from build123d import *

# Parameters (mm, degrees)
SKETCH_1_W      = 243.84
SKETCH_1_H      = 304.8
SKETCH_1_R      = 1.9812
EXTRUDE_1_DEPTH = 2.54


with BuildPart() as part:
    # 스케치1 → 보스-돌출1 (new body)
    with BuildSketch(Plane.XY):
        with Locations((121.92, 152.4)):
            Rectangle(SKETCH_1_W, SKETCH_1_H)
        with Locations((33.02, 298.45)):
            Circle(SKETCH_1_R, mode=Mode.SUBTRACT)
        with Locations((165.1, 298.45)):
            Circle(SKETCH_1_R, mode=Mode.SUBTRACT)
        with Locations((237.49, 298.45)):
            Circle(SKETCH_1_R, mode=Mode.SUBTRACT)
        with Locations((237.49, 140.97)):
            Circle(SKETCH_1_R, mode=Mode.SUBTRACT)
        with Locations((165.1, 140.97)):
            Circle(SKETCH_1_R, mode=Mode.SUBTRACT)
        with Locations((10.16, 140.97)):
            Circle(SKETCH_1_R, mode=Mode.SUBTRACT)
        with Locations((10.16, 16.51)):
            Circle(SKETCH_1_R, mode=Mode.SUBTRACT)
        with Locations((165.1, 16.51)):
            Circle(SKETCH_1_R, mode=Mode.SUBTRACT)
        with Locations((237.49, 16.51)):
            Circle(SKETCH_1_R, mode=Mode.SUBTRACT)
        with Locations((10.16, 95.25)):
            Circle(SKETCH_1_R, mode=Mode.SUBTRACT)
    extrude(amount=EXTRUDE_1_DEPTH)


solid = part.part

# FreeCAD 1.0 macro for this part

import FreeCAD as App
import Part
import Sketcher
Q = App.Units.Quantity


def add_polygon(sketch, points):
    """Adds a closed chain of lines whose ends are joined by coincident constraints."""
    first, n = sketch.GeometryCount, len(points)
    for a, b in zip(points, points[1:] + points[:1]):
        sketch.addGeometry(Part.LineSegment(App.Vector(*a, 0), App.Vector(*b, 0)), False)
    for i in range(n):
        sketch.addConstraint(Sketcher.Constraint("Coincident", first + i, 2, first + (i + 1) % n, 1))

doc = App.newDocument("Part")
params = doc.addObject("Spreadsheet::Sheet", "Params")
for row, (alias, value) in enumerate([
    ("sketch1_height", "12 in"),
    ("sketch1_diameter", "0.156 in"),
    ("sketch1_width", "9.6 in"),
    ("pad1_length", "0.1 in"),
], start=1):
    params.set(f"A{row}", alias)
    params.set(f"B{row}", "=" + value)
    params.setAlias(f"B{row}", alias)

body = doc.addObject("PartDesign::Body", "Body")

# Sketch on XY plane
sketch1 = doc.addObject("Sketcher::SketchObject", "Sketch")
body.addObject(sketch1)
sketch1.AttachmentSupport = (doc.XY_Plane, [""])
sketch1.MapMode = "FlatFace"
add_polygon(sketch1, [(0, 304.8), (0, 0), (243.8, 0), (243.8, 304.8)])  # lines 0-3
sketch1.addGeometry(Part.Circle(App.Vector(10.2, 16.5, 0), App.Vector(0, 0, 1), 2), False)  # 4
sketch1.addGeometry(Part.Circle(App.Vector(10.2, 95.2, 0), App.Vector(0, 0, 1), 2), False)  # 5
sketch1.addGeometry(Part.Circle(App.Vector(10.2, 141, 0), App.Vector(0, 0, 1), 2), False)  # 6
sketch1.addGeometry(Part.Circle(App.Vector(165.1, 16.5, 0), App.Vector(0, 0, 1), 2), False)  # 7
sketch1.addGeometry(Part.Circle(App.Vector(237.5, 16.5, 0), App.Vector(0, 0, 1), 2), False)  # 8
sketch1.addGeometry(Part.Circle(App.Vector(165.1, 141, 0), App.Vector(0, 0, 1), 2), False)  # 9
sketch1.addGeometry(Part.Circle(App.Vector(237.5, 141, 0), App.Vector(0, 0, 1), 2), False)  # 10
sketch1.addGeometry(Part.Circle(App.Vector(33, 298.4, 0), App.Vector(0, 0, 1), 2), False)  # 11
sketch1.addGeometry(Part.Circle(App.Vector(165.1, 298.4, 0), App.Vector(0, 0, 1), 2), False)  # 12
sketch1.addGeometry(Part.Circle(App.Vector(237.5, 298.4, 0), App.Vector(0, 0, 1), 2), False)  # 13
sketch1.addConstraint([
    Sketcher.Constraint("Vertical", 0),
    Sketcher.Constraint("Horizontal", 1),
    Sketcher.Constraint("Vertical", 2),
    Sketcher.Constraint("Horizontal", 3),
    Sketcher.Constraint("Coincident", 0, 2, -1, 1),
    Sketcher.Constraint("Equal", 4, 5),
    Sketcher.Constraint("Equal", 5, 6),
    Sketcher.Constraint("Equal", 6, 7),
    Sketcher.Constraint("Equal", 7, 8),
    Sketcher.Constraint("Equal", 8, 9),
    Sketcher.Constraint("Equal", 9, 10),
    Sketcher.Constraint("Equal", 10, 11),
    Sketcher.Constraint("Equal", 11, 12),
    Sketcher.Constraint("Equal", 12, 13),
    Sketcher.Constraint("Horizontal", 4, 3, 7, 3),
    Sketcher.Constraint("Horizontal", 7, 3, 8, 3),
    Sketcher.Constraint("Horizontal", 6, 3, 9, 3),
    Sketcher.Constraint("Horizontal", 9, 3, 10, 3),
    Sketcher.Constraint("Horizontal", 11, 3, 12, 3),
    Sketcher.Constraint("Horizontal", 12, 3, 13, 3),
    Sketcher.Constraint("Vertical", 4, 3, 5, 3),
    Sketcher.Constraint("Vertical", 5, 3, 6, 3),
    Sketcher.Constraint("Vertical", 7, 3, 9, 3),
    Sketcher.Constraint("Vertical", 8, 3, 10, 3),
    Sketcher.Constraint("Vertical", 9, 3, 12, 3),
    Sketcher.Constraint("Vertical", 10, 3, 13, 3),
    Sketcher.Constraint("DistanceY", 0, 2, 0, 1, Q("12 in")),
    Sketcher.Constraint("Diameter", 4, Q("0.156 in")),
    Sketcher.Constraint("DistanceX", 1, 1, 1, 2, Q("9.6 in")),
    Sketcher.Constraint("DistanceY", 5, 3, 11, 3, Q("8 in")),
    Sketcher.Constraint("DistanceX", -1, 1, 4, 3, Q("0.4 in")),
    Sketcher.Constraint("DistanceX", -1, 1, 7, 3, Q("6.5 in")),
    Sketcher.Constraint("DistanceX", -1, 1, 11, 3, Q("1.3 in")),
    Sketcher.Constraint("DistanceY", 4, 3, 5, 3, Q("3.1 in")),
    Sketcher.Constraint("DistanceY", 5, 3, 6, 3, Q("1.8 in")),
    Sketcher.Constraint("DistanceY", -1, 1, 4, 3, Q("0.65 in")),
    Sketcher.Constraint("DistanceX", -1, 1, 8, 3, Q("9.35 in")),
])
sketch1.setExpression("Constraints[30]", "Params.sketch1_height")
sketch1.setExpression("Constraints[31]", "Params.sketch1_diameter")
sketch1.setExpression("Constraints[32]", "Params.sketch1_width")
pad1 = doc.addObject("PartDesign::Pad", "Pad")
body.addObject(pad1)
pad1.Profile = sketch1
pad1.setExpression("Length", "Params.pad1_length")

doc.recompute()
